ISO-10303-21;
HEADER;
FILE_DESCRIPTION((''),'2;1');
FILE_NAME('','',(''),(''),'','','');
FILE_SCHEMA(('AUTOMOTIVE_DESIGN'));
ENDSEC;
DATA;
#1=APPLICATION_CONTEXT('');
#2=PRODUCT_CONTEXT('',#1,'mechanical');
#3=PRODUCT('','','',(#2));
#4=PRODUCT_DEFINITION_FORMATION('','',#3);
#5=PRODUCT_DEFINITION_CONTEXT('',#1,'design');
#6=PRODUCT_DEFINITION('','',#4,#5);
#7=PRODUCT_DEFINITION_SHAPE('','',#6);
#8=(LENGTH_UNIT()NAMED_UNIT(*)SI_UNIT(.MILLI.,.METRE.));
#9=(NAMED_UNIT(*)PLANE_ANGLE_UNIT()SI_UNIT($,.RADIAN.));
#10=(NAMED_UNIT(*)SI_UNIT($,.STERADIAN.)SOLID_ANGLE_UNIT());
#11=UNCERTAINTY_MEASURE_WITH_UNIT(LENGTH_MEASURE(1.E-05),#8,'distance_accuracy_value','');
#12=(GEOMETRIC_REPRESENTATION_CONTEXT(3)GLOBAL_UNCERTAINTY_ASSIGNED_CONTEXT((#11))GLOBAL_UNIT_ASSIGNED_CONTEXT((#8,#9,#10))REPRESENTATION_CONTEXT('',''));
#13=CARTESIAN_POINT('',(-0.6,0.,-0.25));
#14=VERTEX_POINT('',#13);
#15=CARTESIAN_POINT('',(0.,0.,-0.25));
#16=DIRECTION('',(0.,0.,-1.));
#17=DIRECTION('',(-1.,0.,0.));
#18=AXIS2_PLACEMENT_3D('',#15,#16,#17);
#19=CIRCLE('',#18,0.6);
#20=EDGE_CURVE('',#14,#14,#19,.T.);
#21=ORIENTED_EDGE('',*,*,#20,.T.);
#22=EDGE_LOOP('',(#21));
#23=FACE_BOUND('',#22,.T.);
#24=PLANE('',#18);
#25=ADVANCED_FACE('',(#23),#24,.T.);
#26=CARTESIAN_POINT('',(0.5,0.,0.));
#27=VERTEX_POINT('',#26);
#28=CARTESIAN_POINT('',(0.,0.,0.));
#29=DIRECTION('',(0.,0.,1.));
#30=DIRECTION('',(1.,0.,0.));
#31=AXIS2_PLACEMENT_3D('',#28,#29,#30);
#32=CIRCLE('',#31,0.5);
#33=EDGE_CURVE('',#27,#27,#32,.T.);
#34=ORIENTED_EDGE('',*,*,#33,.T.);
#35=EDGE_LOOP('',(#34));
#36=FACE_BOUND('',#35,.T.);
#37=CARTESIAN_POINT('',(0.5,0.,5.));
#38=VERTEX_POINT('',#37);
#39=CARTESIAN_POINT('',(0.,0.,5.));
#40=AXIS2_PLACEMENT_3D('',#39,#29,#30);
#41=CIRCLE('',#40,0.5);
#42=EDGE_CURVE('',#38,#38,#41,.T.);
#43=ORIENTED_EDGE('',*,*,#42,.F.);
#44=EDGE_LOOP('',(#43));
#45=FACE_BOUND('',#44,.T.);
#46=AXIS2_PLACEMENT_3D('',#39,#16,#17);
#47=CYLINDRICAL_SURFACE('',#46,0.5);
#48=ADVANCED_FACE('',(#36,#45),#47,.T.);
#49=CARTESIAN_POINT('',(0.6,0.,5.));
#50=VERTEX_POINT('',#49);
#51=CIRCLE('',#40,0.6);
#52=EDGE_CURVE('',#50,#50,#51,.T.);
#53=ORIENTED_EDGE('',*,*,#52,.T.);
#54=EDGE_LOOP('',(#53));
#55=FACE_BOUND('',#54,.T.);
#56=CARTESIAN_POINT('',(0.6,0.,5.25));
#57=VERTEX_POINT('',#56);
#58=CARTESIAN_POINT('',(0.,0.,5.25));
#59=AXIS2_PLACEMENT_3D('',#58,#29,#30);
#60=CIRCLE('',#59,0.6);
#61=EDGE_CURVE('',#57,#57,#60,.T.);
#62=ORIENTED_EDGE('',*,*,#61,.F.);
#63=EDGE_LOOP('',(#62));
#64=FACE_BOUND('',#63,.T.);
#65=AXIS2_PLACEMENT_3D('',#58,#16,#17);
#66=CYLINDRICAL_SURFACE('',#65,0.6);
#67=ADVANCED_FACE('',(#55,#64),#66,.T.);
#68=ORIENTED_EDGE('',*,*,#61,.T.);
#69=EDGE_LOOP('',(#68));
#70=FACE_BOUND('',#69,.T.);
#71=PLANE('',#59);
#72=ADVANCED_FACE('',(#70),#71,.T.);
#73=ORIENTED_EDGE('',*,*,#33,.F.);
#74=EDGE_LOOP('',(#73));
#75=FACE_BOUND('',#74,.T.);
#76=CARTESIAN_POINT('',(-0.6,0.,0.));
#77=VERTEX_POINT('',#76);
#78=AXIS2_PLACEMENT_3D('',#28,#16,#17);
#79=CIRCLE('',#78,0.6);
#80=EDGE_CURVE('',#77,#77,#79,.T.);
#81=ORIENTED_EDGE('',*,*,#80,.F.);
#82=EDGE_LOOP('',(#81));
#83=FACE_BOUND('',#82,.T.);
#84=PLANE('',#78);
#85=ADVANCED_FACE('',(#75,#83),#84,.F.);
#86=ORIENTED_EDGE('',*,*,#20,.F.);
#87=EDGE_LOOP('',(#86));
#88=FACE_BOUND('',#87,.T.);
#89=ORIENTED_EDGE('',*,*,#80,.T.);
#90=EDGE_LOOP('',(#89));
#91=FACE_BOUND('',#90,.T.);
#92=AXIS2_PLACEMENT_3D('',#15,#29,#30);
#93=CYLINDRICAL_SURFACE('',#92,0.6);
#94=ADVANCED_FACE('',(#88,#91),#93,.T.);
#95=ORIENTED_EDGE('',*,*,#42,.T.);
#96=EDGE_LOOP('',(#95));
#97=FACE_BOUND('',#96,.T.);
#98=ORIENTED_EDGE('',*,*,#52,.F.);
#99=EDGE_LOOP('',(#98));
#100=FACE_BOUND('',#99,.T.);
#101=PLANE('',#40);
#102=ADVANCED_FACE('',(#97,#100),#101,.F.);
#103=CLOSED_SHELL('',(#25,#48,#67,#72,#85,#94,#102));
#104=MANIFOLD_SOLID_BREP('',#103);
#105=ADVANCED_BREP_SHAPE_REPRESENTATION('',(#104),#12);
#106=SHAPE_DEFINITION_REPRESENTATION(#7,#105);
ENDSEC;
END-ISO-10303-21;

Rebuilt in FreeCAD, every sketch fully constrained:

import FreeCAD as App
import Part
import Sketcher

V = App.Vector

doc = App.newDocument("Part")
params = doc.addObject("Spreadsheet::Sheet", "Params")
for row, (alias, value) in enumerate([
    ("sketch1_diameter", "1 mm"),
    ("pad1_length", "5 mm"),
    ("sketch2_diameter", "1.2 mm"),
    ("pad2_length", "0.25 mm"),
    ("sketch3_diameter", "1.2 mm"),
    ("pad3_length", "0.25 mm"),
], start=1):
    params.set(f"A{row}", alias)
    params.set(f"B{row}", "=" + value)
    params.setAlias(f"B{row}", alias)

body = doc.addObject("PartDesign::Body", "Body")

# Sketch on XY plane
sketch1 = body.newObject("Sketcher::SketchObject", "Sketch")
sketch1.AttachmentSupport = (doc.getObject("XY_Plane"), [""])
sketch1.MapMode = "FlatFace"
sketch1.addGeometry(Part.Circle(V(0, 0, 0), V(0, 0, 1), 0.5), False)
sketch1.addConstraint(Sketcher.Constraint("Coincident", 0, 3, -1, 1))
sketch1.addConstraint(Sketcher.Constraint("Diameter", 0, 1.0))
sketch1.setExpression("Constraints[1]", "Params.sketch1_diameter")
pad1 = body.newObject("PartDesign::Pad", "Pad")
pad1.Profile = sketch1
pad1.setExpression("Length", "Params.pad1_length")

# Sketch on XY plane
sketch2 = body.newObject("Sketcher::SketchObject", "Sketch001")
sketch2.AttachmentSupport = (doc.getObject("XY_Plane"), [""])
sketch2.MapMode = "FlatFace"
sketch2.AttachmentOffset = App.Placement(V(0, 0, 5), App.Rotation())
sketch2.addGeometry(Part.Circle(V(0, 0, 0), V(0, 0, 1), 0.6), False)
sketch2.addConstraint(Sketcher.Constraint("Coincident", 0, 3, -1, 1))
sketch2.addConstraint(Sketcher.Constraint("Diameter", 0, 1.2))
sketch2.setExpression("Constraints[1]", "Params.sketch2_diameter")
pad2 = body.newObject("PartDesign::Pad", "Pad001")
pad2.Profile = sketch2
pad2.setExpression("Length", "Params.pad2_length")

# Sketch on XY plane
sketch3 = body.newObject("Sketcher::SketchObject", "Sketch002")
sketch3.AttachmentSupport = (doc.getObject("XY_Plane"), [""])
sketch3.MapMode = "FlatFace"
sketch3.addGeometry(Part.Circle(V(0, 0, 0), V(0, 0, 1), 0.6), False)
sketch3.addConstraint(Sketcher.Constraint("Coincident", 0, 3, -1, 1))
sketch3.addConstraint(Sketcher.Constraint("Diameter", 0, 1.2))
sketch3.setExpression("Constraints[1]", "Params.sketch3_diameter")
pad3 = body.newObject("PartDesign::Pad", "Pad002")
pad3.Profile = sketch3
pad3.setExpression("Length", "Params.pad3_length")
pad3.Reversed = True

doc.recompute()
